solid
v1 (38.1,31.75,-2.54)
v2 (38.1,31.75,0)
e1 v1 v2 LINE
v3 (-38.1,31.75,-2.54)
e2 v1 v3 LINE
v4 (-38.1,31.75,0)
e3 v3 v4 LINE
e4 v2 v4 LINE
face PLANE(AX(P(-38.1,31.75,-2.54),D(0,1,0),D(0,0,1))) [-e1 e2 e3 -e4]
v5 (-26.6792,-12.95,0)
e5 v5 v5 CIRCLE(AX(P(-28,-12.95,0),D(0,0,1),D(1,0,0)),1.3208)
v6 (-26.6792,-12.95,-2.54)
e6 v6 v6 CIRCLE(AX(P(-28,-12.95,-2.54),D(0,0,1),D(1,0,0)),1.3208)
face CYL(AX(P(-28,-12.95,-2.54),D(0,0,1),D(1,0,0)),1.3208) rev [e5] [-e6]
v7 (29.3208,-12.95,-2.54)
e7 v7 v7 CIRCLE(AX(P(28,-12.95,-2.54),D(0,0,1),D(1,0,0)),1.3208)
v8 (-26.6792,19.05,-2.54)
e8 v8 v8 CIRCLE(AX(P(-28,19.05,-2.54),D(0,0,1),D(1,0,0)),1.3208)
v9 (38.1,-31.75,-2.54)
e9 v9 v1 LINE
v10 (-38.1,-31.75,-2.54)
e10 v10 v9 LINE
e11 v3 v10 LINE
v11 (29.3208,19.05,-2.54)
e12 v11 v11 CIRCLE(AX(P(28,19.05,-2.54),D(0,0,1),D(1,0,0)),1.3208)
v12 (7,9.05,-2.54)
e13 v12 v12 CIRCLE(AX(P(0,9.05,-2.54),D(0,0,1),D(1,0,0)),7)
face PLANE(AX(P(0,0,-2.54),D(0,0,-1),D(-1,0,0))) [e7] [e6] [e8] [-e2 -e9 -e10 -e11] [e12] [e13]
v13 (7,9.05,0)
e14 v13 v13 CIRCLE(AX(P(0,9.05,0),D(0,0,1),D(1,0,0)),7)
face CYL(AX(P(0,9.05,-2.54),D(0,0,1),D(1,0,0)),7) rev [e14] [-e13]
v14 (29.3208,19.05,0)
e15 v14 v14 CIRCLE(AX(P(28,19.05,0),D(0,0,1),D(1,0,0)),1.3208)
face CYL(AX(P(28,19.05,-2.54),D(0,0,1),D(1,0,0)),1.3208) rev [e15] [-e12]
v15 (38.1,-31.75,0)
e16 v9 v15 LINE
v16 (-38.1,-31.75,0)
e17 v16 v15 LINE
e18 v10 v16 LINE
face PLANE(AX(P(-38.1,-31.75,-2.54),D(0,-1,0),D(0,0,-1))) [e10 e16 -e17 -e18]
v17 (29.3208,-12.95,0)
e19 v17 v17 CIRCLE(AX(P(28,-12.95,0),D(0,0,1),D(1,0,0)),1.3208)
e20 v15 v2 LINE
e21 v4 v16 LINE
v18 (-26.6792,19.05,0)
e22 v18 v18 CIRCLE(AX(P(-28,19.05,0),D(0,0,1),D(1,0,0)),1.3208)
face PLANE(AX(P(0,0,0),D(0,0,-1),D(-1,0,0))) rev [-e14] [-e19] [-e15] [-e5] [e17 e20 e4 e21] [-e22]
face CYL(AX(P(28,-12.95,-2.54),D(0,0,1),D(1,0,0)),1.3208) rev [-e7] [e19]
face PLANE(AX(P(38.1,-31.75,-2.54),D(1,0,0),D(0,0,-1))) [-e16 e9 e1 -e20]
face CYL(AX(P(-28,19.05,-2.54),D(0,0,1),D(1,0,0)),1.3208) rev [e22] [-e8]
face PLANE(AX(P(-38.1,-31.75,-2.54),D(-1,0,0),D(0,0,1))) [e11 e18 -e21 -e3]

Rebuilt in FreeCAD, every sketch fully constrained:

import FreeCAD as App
import Part
import Sketcher

V = App.Vector
Q = App.Units.Quantity


def add_polygon(sketch, points):
    """Adds a closed chain of lines whose ends are joined by coincident constraints."""
    first, n = sketch.GeometryCount, len(points)
    for a, b in zip(points, points[1:] + points[:1]):
        sketch.addGeometry(Part.LineSegment(App.Vector(*a, 0), App.Vector(*b, 0)), False)
    for i in range(n):
        sketch.addConstraint(Sketcher.Constraint("Coincident", first + i, 2, first + (i + 1) % n, 1))

doc = App.newDocument("Part")
body = doc.addObject("PartDesign::Body", "Body")

sketch1 = body.newObject("Sketcher::SketchObject", "Sketch")
sketch1.AttachmentSupport = (doc.getObject("XY_Plane"), [""])
sketch1.MapMode = "FlatFace"
add_polygon(sketch1, [(-38.1, 31.8), (-38.1, -31.8), (38.1, -31.8), (38.1, 31.8)])
sketch1.addGeometry(Part.Circle(V(-28, -12.9, 0), V(0, 0, 1), 1.3), False)
sketch1.addGeometry(Part.Circle(V(28, -12.9, 0), V(0, 0, 1), 1.3), False)
sketch1.addGeometry(Part.Circle(V(-28, 19.1, 0), V(0, 0, 1), 1.3), False)
sketch1.addGeometry(Part.Circle(V(0, 9.1, 0), V(0, 0, 1), 7), False)
sketch1.addGeometry(Part.Circle(V(28, 19.1, 0), V(0, 0, 1), 1.3), False)
sketch1.addConstraint(Sketcher.Constraint("Vertical", 0))
sketch1.addConstraint(Sketcher.Constraint("Horizontal", 1))
sketch1.addConstraint(Sketcher.Constraint("Vertical", 2))
sketch1.addConstraint(Sketcher.Constraint("Horizontal", 3))
sketch1.addConstraint(Sketcher.Constraint("Equal", 4, 5))
sketch1.addConstraint(Sketcher.Constraint("Equal", 5, 6))
sketch1.addConstraint(Sketcher.Constraint("Equal", 6, 8))
sketch1.addConstraint(Sketcher.Constraint("Symmetric", 0, 2, 2, 2, -1, 1))
sketch1.addConstraint(Sketcher.Constraint("Symmetric", 4, 3, 5, 3, -2))
sketch1.addConstraint(Sketcher.Constraint("Symmetric", 6, 3, 8, 3, -2))
sketch1.addConstraint(Sketcher.Constraint("PointOnObject", 7, 3, -2))
sketch1.addConstraint(Sketcher.Constraint("Vertical", 4, 3, 6, 3))
sketch1.addConstraint(Sketcher.Constraint("DistanceX", 1, 1, 1, 2, Q("3 in")))
sketch1.addConstraint(Sketcher.Constraint("Diameter", 4, Q("0.104 in")))
sketch1.addConstraint(Sketcher.Constraint("DistanceY", 0, 2, 0, 1, Q("2.5 in")))
sketch1.addConstraint(Sketcher.Constraint("DistanceY", 0, 2, 6, 3, Q("2 in")))
sketch1.addConstraint(Sketcher.Constraint("Diameter", 7, Q("14 mm")))
sketch1.addConstraint(Sketcher.Constraint("DistanceX", 4, 3, -1, 1, Q("28 mm")))
sketch1.addConstraint(Sketcher.Constraint("DistanceY", 4, 3, -1, 1, Q("12.95 mm")))
sketch1.addConstraint(Sketcher.Constraint("DistanceY", -1, 1, 7, 3, Q("9.05 mm")))
pad1 = body.newObject("PartDesign::Pad", "Pad")
pad1.Profile = sketch1
pad1.Length = Q("0.1 in")
pad1.Reversed = True

doc.recompute()
